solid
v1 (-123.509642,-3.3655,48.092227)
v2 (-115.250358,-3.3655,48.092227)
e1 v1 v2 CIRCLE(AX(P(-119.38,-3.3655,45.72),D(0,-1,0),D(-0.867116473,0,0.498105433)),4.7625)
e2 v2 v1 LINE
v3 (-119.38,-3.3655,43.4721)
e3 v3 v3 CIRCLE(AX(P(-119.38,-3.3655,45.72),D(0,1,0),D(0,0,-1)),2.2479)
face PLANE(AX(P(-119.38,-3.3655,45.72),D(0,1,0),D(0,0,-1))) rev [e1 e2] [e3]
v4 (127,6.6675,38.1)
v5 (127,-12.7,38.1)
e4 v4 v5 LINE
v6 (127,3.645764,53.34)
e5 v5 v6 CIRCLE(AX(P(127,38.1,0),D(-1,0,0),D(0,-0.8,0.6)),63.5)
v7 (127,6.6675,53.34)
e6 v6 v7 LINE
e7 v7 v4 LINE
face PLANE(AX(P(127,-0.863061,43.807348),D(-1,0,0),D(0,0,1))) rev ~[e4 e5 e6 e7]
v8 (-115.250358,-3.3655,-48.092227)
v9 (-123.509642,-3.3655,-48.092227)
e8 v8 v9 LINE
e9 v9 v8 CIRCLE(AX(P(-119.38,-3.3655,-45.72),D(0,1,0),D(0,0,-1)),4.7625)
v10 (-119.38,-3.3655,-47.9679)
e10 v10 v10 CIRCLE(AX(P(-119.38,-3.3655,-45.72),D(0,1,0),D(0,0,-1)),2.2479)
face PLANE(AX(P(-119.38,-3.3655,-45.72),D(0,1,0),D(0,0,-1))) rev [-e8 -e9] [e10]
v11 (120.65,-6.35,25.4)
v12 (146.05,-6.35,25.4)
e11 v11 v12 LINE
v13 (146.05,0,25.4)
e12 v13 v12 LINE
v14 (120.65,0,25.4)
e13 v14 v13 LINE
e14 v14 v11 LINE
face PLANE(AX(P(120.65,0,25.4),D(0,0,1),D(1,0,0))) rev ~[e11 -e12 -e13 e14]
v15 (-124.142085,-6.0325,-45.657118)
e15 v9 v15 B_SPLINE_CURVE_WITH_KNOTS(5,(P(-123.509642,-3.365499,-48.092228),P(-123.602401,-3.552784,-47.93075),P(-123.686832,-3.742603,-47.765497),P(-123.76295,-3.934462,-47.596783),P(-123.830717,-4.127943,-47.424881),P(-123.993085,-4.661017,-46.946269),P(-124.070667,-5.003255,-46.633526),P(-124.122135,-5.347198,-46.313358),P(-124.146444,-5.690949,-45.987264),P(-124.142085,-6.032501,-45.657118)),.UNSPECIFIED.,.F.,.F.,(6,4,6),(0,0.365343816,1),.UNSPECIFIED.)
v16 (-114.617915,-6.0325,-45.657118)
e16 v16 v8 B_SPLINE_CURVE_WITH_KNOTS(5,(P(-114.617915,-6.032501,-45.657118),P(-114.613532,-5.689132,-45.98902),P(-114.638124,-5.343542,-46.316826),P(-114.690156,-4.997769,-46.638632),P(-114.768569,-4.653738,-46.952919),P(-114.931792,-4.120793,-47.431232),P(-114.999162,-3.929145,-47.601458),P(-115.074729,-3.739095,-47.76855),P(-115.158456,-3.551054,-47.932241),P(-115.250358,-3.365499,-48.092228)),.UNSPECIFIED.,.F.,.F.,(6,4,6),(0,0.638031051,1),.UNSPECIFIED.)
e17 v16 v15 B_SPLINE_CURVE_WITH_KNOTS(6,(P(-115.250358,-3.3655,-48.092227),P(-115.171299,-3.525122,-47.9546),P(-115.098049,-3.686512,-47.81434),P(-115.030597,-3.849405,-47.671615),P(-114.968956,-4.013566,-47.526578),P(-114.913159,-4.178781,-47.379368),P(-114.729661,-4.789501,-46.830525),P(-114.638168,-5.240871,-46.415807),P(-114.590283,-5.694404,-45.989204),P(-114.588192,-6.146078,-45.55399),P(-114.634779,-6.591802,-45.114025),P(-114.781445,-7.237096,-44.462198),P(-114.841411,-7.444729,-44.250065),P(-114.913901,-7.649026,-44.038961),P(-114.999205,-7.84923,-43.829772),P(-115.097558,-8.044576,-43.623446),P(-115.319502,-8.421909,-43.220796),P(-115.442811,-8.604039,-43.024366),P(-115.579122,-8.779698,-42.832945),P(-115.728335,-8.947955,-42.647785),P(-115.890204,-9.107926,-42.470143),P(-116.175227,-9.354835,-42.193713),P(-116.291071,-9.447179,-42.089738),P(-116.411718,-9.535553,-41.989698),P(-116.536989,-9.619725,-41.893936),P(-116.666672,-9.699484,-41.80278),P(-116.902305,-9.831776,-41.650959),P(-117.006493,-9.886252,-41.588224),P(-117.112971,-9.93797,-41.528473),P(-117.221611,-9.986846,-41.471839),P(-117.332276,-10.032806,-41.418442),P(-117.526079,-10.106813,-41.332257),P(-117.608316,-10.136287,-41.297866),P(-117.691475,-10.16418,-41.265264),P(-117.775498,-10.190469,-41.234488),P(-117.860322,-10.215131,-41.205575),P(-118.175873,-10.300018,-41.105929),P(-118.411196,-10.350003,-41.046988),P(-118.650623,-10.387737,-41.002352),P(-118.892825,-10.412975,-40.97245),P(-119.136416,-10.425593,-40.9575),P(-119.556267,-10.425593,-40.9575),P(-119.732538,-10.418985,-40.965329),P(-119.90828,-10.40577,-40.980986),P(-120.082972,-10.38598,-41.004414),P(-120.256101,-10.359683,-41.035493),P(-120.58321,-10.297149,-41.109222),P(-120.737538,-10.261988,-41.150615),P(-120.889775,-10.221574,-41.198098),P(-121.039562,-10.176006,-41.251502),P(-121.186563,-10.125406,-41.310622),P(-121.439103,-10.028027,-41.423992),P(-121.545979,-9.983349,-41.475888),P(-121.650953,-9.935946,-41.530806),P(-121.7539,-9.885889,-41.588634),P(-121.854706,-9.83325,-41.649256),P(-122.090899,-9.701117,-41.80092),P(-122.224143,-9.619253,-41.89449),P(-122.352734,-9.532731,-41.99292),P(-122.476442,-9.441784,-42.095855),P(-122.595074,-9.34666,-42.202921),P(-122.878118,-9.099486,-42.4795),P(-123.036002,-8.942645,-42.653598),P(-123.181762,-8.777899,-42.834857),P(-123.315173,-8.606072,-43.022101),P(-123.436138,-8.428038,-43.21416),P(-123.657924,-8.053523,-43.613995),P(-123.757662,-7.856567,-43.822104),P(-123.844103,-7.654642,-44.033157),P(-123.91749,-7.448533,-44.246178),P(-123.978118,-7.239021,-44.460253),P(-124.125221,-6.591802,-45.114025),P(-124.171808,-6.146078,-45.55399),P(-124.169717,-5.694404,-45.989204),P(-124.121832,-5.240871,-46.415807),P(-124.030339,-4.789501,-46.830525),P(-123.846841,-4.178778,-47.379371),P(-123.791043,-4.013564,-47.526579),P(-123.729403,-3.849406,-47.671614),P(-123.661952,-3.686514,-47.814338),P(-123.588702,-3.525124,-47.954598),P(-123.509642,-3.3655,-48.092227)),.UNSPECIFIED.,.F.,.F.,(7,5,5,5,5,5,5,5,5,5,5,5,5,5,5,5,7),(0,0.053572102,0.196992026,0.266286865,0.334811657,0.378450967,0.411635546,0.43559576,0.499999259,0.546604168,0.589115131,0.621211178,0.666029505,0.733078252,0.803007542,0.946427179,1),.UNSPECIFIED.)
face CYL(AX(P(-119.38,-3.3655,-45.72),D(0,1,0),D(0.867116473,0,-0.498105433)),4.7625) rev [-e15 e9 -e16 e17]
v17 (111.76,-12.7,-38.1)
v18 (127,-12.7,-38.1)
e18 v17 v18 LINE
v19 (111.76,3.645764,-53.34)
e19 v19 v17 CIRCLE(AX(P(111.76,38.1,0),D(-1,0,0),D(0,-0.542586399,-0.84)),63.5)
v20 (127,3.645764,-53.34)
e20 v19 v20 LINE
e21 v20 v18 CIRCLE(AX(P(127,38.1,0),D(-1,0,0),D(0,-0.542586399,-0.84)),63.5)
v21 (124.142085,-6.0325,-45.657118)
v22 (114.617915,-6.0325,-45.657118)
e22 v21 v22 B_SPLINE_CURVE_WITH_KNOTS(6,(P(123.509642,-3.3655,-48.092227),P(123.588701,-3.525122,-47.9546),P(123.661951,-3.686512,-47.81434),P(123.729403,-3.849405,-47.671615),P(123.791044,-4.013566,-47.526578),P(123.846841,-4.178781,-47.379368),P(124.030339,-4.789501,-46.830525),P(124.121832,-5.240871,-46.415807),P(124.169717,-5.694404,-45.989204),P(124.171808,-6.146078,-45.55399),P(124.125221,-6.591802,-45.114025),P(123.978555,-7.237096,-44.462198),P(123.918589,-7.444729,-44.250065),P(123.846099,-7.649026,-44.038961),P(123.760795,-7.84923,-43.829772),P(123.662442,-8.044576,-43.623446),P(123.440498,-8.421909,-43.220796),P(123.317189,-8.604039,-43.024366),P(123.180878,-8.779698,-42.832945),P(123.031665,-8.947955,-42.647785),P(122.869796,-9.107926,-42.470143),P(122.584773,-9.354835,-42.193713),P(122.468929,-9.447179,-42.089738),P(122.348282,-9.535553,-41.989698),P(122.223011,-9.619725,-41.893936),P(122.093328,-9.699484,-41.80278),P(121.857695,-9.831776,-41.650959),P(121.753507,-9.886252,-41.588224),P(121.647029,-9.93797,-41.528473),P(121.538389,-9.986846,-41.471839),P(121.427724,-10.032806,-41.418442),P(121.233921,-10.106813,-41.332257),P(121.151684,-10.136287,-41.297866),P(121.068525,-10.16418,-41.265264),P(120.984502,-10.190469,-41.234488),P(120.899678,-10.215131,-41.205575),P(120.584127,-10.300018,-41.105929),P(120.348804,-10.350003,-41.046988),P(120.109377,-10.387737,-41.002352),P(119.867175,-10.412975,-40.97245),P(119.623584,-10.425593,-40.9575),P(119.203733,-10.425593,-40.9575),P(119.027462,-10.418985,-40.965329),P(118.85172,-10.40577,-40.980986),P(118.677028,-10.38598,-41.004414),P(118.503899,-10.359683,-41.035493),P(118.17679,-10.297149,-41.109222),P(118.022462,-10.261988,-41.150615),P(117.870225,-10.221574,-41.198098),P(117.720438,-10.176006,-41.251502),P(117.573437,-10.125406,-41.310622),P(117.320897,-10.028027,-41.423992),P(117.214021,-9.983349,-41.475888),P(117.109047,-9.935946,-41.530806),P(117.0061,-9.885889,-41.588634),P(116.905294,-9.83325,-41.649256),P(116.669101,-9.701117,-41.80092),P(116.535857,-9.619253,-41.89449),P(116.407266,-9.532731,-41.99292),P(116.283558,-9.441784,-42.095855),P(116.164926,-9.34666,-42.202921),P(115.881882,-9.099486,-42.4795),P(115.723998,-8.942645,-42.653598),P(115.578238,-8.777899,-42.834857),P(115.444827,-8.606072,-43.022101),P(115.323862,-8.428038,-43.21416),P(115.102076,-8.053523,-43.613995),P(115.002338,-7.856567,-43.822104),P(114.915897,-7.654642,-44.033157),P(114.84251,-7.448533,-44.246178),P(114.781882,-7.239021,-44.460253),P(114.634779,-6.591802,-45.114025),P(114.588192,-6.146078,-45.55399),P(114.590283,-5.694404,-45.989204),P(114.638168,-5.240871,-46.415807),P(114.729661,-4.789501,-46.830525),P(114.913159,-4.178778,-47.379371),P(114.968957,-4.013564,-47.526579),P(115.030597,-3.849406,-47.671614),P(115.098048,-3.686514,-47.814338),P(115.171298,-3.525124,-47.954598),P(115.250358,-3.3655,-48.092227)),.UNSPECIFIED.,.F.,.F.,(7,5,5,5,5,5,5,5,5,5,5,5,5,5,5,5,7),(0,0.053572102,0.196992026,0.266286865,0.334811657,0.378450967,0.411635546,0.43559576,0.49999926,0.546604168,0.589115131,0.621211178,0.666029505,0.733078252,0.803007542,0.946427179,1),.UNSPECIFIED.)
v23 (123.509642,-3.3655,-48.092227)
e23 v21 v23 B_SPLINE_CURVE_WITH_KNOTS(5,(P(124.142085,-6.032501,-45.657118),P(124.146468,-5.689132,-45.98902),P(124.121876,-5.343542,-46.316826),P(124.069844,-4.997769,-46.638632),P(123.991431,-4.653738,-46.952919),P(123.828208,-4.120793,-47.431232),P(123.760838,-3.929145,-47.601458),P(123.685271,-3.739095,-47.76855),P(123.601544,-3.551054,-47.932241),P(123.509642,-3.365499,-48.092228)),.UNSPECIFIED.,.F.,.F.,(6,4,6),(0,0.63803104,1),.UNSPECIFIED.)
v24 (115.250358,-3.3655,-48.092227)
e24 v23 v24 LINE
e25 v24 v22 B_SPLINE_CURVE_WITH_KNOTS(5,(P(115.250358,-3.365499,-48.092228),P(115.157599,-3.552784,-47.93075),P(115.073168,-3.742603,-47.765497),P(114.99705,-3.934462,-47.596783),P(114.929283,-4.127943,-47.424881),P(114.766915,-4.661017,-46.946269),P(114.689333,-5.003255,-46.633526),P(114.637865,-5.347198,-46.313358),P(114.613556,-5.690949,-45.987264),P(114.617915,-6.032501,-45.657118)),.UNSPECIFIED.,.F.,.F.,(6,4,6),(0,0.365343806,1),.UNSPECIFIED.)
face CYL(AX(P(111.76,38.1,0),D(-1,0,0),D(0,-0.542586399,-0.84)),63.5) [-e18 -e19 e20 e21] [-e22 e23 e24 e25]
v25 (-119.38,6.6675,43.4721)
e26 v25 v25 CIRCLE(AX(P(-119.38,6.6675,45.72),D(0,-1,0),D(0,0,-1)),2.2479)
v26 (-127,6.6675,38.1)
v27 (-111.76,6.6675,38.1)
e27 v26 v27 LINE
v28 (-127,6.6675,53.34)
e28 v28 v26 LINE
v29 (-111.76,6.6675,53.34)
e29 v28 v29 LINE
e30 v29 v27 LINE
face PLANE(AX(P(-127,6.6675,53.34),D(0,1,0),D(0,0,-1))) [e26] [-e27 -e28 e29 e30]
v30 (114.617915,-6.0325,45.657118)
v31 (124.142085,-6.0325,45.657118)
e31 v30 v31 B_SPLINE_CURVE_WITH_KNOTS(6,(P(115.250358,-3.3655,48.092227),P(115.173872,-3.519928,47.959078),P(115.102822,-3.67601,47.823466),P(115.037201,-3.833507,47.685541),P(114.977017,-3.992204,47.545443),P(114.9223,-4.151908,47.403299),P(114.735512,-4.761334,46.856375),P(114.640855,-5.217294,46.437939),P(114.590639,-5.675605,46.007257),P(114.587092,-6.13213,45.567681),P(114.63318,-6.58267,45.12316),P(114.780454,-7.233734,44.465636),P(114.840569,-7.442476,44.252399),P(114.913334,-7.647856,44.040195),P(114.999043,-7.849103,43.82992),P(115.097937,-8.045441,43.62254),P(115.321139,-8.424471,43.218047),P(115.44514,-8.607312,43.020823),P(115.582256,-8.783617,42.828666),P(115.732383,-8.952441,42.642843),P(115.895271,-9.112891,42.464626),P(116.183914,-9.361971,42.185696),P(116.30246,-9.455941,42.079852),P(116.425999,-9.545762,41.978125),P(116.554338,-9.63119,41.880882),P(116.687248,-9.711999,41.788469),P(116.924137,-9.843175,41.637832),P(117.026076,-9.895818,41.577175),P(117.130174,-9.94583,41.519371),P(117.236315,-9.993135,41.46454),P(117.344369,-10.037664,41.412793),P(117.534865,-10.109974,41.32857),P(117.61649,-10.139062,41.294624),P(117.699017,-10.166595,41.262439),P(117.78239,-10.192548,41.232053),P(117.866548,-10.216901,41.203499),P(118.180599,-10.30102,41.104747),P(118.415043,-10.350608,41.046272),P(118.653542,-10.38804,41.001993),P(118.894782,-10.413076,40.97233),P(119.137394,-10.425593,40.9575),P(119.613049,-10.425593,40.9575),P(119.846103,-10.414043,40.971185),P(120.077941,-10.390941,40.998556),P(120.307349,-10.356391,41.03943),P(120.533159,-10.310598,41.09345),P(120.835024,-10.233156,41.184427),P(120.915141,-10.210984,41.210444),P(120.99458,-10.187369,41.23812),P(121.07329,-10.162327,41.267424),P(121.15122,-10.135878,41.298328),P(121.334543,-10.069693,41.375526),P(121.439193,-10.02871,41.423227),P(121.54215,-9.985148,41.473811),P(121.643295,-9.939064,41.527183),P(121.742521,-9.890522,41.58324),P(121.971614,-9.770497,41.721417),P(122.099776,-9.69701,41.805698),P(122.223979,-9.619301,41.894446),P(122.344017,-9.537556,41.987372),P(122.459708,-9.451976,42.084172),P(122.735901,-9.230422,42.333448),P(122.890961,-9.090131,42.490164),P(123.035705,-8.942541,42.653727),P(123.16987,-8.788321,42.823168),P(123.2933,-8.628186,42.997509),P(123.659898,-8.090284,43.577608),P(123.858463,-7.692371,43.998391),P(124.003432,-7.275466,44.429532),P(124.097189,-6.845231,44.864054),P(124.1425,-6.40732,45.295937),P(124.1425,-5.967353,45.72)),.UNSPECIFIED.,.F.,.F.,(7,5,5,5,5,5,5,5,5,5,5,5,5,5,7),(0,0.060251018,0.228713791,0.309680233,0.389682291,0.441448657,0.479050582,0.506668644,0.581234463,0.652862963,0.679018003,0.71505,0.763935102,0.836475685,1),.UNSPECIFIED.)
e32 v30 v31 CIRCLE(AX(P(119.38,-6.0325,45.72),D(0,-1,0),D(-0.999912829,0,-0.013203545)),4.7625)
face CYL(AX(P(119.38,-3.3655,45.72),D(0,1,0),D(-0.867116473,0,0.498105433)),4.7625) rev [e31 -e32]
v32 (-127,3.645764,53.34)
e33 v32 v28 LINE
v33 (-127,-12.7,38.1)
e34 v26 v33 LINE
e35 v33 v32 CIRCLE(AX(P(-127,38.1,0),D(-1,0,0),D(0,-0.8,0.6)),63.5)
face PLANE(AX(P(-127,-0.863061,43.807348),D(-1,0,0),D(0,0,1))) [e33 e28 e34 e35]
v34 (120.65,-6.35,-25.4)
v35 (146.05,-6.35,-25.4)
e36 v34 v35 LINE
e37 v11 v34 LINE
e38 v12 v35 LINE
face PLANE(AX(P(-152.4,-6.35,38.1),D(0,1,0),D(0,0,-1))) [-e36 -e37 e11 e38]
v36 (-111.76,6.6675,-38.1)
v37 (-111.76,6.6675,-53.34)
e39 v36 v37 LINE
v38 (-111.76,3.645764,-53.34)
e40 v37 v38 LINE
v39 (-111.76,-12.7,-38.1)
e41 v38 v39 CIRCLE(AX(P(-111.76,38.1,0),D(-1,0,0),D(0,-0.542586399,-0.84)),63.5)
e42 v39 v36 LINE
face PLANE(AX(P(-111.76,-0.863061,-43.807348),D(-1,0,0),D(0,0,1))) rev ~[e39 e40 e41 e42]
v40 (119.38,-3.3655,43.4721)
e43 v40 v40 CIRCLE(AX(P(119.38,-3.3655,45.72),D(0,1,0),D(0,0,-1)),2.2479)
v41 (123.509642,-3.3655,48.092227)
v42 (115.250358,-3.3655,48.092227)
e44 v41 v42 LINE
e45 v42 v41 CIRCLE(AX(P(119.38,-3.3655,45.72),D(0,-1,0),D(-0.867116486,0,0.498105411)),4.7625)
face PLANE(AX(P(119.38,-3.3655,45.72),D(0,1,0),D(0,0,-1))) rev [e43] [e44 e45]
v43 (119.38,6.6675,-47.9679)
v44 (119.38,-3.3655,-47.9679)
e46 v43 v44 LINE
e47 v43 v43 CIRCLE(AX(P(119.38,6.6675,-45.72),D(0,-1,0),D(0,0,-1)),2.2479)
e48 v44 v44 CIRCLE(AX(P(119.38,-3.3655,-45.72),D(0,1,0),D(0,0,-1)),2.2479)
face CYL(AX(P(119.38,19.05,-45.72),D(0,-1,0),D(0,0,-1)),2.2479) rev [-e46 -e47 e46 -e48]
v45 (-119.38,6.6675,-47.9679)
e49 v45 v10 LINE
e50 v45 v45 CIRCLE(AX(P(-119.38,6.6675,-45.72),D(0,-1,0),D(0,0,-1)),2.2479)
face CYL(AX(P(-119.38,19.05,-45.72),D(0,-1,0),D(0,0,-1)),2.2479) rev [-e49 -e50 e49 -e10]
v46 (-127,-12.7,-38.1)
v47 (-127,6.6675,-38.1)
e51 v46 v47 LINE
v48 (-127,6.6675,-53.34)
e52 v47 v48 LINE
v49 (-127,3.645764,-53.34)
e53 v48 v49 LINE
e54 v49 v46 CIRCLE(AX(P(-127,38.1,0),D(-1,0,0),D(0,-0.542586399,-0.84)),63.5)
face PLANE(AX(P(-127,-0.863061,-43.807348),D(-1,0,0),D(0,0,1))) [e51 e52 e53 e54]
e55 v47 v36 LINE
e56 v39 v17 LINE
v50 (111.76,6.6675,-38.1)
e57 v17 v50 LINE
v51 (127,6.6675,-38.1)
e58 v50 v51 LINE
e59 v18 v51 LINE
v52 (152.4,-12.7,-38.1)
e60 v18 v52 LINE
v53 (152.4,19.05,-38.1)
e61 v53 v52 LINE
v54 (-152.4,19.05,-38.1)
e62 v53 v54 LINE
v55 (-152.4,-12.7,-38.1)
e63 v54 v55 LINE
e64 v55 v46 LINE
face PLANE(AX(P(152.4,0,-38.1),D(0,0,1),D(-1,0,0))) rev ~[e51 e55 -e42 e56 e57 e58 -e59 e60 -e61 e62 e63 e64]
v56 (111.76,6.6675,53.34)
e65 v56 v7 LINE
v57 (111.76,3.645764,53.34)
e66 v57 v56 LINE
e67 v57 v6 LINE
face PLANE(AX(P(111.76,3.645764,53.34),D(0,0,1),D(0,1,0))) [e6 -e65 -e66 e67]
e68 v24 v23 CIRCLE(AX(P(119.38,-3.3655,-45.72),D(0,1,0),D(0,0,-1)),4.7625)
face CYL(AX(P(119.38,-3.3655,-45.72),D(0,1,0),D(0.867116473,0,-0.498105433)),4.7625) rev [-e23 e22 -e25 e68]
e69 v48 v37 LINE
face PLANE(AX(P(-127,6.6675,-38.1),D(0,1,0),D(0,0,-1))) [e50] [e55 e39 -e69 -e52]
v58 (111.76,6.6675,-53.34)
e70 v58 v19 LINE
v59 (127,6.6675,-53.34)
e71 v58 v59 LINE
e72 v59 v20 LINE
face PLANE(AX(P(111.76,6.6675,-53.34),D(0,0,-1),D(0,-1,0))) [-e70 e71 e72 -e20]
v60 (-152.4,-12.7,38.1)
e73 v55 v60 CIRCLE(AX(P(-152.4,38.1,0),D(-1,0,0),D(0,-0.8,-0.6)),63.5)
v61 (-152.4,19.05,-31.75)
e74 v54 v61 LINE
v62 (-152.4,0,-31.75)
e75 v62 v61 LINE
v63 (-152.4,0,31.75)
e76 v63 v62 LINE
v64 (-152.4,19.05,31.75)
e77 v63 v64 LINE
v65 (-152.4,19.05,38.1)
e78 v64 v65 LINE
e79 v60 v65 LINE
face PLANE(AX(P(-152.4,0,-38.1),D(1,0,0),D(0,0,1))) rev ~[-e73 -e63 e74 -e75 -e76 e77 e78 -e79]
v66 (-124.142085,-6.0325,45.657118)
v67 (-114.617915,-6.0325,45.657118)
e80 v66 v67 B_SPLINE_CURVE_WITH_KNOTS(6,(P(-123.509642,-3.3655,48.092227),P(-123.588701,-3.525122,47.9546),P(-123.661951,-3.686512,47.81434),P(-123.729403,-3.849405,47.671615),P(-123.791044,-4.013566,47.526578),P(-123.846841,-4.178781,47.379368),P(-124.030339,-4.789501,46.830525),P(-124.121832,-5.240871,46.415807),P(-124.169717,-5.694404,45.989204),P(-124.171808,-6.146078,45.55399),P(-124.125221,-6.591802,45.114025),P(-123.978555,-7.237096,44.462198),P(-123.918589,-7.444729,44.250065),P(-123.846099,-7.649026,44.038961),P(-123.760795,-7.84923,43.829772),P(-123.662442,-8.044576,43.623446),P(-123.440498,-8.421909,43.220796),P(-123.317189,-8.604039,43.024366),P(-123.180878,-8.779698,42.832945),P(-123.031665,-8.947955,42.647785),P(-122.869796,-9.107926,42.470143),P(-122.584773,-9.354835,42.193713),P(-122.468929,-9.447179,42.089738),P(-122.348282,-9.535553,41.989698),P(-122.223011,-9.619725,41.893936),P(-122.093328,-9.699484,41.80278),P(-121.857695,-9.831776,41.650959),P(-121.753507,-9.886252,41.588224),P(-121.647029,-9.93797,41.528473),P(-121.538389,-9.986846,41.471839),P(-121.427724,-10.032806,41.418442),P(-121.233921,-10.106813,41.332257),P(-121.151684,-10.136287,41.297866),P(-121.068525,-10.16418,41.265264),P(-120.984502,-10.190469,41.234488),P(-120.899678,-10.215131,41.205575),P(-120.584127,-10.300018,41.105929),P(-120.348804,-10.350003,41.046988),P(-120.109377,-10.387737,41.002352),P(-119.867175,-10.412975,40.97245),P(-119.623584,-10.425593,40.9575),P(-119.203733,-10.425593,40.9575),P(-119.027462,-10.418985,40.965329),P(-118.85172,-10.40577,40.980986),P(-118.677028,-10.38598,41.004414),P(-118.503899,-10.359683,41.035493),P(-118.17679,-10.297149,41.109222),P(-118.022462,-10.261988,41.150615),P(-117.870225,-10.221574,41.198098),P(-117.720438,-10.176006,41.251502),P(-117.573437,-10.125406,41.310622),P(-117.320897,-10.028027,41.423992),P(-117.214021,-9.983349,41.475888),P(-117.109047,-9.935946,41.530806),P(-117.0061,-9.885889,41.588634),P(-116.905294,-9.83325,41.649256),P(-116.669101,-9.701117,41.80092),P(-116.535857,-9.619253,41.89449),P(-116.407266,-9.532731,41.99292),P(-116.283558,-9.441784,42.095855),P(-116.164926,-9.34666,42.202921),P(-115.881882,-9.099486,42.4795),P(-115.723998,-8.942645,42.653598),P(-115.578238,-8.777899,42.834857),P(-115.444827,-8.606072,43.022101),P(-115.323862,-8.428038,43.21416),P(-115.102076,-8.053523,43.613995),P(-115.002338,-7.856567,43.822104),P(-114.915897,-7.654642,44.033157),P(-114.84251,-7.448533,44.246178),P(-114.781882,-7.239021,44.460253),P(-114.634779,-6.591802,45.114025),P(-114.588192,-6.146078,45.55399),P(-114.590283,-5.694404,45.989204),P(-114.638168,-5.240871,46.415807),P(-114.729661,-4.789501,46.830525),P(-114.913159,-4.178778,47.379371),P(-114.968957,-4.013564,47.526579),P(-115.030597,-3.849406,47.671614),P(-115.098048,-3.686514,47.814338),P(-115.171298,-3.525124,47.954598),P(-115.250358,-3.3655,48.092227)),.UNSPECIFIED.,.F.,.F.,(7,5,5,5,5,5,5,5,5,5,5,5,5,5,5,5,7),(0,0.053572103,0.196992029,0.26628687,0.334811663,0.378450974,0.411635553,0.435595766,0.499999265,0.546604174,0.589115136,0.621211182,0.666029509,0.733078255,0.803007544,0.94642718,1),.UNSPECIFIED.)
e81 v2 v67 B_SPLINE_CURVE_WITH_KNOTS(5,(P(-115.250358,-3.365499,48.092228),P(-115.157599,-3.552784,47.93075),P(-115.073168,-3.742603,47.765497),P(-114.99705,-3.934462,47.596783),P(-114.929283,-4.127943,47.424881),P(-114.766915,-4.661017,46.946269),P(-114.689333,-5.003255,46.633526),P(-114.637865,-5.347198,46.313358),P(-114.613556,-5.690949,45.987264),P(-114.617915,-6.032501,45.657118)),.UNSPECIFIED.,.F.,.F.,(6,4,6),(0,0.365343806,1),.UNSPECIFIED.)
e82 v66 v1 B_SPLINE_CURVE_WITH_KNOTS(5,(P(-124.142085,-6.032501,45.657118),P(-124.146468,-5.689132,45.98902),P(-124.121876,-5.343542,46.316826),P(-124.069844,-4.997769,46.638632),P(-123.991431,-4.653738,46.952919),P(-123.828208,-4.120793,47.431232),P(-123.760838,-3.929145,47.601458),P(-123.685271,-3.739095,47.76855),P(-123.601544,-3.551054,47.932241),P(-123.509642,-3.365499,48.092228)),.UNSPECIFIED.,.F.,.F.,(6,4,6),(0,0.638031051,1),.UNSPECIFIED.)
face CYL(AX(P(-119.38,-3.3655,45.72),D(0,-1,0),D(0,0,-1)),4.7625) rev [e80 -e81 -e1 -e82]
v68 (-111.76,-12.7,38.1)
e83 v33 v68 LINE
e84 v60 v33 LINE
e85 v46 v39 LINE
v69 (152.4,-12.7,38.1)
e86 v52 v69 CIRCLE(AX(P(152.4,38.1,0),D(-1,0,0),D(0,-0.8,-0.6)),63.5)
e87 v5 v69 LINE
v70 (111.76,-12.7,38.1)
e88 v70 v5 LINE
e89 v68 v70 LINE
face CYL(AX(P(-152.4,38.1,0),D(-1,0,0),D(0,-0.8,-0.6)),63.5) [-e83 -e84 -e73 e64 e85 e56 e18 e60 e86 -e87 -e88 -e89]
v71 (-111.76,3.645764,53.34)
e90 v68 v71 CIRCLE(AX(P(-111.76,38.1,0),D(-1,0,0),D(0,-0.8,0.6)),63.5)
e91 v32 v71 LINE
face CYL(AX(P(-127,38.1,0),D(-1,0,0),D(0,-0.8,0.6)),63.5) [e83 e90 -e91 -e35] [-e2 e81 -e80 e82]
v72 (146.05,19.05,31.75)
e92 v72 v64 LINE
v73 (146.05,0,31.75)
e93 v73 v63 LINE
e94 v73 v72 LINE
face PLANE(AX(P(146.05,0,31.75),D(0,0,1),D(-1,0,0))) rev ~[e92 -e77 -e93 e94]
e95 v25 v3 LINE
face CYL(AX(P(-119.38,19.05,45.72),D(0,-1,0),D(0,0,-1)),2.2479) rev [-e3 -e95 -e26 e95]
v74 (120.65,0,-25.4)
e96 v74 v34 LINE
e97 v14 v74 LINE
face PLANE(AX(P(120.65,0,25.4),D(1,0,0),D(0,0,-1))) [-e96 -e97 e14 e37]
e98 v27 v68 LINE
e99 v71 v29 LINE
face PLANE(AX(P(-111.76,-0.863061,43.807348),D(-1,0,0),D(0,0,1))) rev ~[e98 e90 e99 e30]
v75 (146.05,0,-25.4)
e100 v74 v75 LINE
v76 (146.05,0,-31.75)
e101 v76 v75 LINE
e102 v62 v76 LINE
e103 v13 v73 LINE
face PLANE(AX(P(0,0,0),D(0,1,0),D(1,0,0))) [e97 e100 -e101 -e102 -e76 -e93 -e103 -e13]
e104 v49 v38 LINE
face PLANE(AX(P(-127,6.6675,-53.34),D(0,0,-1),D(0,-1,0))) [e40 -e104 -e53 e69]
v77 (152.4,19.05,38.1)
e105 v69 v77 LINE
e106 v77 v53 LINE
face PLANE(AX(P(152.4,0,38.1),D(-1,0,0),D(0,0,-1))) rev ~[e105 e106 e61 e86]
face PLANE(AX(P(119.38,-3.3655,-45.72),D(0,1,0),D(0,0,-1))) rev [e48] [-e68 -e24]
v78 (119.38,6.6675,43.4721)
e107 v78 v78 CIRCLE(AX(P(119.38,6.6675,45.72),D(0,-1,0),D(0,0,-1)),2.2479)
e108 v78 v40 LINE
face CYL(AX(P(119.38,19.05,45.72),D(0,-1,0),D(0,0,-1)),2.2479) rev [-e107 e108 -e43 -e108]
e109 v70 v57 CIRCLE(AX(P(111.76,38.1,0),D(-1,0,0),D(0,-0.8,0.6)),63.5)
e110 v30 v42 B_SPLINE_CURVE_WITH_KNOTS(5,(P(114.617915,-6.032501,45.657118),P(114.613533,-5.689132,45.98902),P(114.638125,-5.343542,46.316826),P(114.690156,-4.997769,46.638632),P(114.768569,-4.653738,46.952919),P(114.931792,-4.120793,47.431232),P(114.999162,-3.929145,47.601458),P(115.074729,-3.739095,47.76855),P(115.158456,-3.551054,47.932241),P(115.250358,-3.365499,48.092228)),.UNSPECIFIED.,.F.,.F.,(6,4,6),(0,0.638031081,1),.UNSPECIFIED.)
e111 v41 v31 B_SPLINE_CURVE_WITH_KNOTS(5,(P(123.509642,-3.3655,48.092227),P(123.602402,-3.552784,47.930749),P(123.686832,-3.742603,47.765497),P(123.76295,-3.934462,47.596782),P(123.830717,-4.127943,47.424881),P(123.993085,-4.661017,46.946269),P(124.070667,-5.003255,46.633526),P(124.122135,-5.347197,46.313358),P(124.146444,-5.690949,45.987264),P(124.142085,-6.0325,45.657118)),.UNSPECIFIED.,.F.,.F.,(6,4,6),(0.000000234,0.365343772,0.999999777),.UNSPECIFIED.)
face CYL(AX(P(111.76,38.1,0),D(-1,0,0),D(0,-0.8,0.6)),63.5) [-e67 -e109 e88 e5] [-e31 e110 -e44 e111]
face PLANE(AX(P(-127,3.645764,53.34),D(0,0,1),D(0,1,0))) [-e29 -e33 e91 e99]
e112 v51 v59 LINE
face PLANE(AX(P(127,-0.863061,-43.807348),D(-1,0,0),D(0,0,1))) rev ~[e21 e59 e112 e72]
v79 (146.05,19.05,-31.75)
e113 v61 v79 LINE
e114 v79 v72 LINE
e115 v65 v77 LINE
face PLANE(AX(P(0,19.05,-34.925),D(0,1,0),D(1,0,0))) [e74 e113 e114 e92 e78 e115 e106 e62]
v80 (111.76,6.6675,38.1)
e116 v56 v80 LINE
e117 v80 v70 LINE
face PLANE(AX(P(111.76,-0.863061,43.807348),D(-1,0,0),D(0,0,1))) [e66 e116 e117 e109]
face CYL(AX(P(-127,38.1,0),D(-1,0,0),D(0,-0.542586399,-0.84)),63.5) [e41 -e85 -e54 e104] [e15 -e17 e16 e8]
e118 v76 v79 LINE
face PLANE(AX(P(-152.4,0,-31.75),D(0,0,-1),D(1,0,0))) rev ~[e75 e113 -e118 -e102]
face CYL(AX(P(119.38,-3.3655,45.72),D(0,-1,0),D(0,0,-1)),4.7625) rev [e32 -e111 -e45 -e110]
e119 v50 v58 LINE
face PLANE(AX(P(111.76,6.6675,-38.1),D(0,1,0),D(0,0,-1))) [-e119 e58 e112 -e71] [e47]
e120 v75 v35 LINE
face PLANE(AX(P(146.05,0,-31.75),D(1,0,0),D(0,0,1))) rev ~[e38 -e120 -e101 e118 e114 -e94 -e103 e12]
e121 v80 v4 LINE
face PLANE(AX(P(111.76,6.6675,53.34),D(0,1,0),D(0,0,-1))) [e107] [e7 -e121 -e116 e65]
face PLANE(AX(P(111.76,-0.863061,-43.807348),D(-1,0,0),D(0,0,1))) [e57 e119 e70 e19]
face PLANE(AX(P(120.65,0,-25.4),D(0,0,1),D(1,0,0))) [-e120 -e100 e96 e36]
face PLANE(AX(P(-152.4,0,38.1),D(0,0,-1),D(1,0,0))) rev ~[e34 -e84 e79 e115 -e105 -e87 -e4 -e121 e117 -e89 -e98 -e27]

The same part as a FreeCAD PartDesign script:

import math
import FreeCAD as App
import Part
import Sketcher

V = App.Vector
Q = App.Units.Quantity

doc = App.newDocument("Part")
params = doc.addObject("Spreadsheet::Sheet", "Params")
for row, (alias, value) in enumerate([
    ("sketch1_width", "12 in"),
    ("sketch1_height", "3 in"),
    ("pad1_length", "0.25 in"),
    ("sketch2_width", "1 in"),
    ("sketch2_height", "2 in"),
    ("pocket1_length", "1 in"),
    ("sketch3_width", "12 in"),
    ("sketch3_height", "3 in"),
    ("sketch3_height2", "2.5 in"),
    ("sketch3_width2", "11.75 in"),
    ("pad2_length", "0.75 in"),
    ("sketch4_radius", "2.5 in"),
    ("sketch4_height", "3 in"),
    ("sketch4_width", "0.25 in"),
    ("pad3_length", "12 in"),
    ("sketch5_radius", "2.5 in"),
    ("sketch5_height", "0.6 in"),
    ("sketch5_width", "2 in"),
    ("pad4_length", "0.6 in"),
    ("sketch6_radius", "2.5 in"),
    ("sketch6_height", "0.6 in"),
    ("sketch6_width", "2 in"),
    ("pad5_length", "0.6 in"),
    ("sketch7_width", "0.105 in"),
    ("sketch7_height", "0.1875 in"),
    ("sketch7_height2", "0.099 in"),
    ("groove_angle", "360 deg"),
    ("linearpattern_pitch", "9.4 in"),
    ("linearpattern2_pitch", "255.670904 mm"),
    ("linearpattern3_pitch", "3.6 in"),
    ("sketch8_radius", "0.1875 in"),
], start=1):
    params.set(f"A{row}", alias)
    params.set(f"B{row}", "=" + value)
    params.setAlias(f"B{row}", alias)

body = doc.addObject("PartDesign::Body", "Body")

sketch1 = body.newObject("Sketcher::SketchObject", "Sketch")
sketch1.AttachmentSupport = (doc.getObject("XZ_Plane"), [""])
sketch1.MapMode = "FlatFace"
sketch1.addGeometry(Part.LineSegment(V(-152.4, -38.1, 0), V(-152.4, 38.1, 0)), False)
sketch1.addGeometry(Part.LineSegment(V(-152.4, 38.1, 0), V(152.4, 38.1, 0)), False)
sketch1.addGeometry(Part.LineSegment(V(152.4, 38.1, 0), V(152.4, -38.1, 0)), False)
sketch1.addGeometry(Part.LineSegment(V(152.4, -38.1, 0), V(-152.4, -38.1, 0)), False)
sketch1.addConstraint(Sketcher.Constraint("Coincident", 0, 2, 1, 1))
sketch1.addConstraint(Sketcher.Constraint("Coincident", 1, 2, 2, 1))
sketch1.addConstraint(Sketcher.Constraint("Coincident", 2, 2, 3, 1))
sketch1.addConstraint(Sketcher.Constraint("Coincident", 3, 2, 0, 1))
sketch1.addConstraint(Sketcher.Constraint("Vertical", 0))
sketch1.addConstraint(Sketcher.Constraint("Horizontal", 1))
sketch1.addConstraint(Sketcher.Constraint("Vertical", 2))
sketch1.addConstraint(Sketcher.Constraint("Horizontal", 3))
sketch1.addConstraint(Sketcher.Constraint("Symmetric", 0, 2, 2, 2, -1, 1))
sketch1.addConstraint(Sketcher.Constraint("DistanceX", 1, 1, 1, 2, Q("12 in")))
sketch1.addConstraint(Sketcher.Constraint("DistanceY", 0, 1, 0, 2, Q("3 in")))
sketch1.setExpression("Constraints[9]", "Params.sketch1_width")
sketch1.setExpression("Constraints[10]", "Params.sketch1_height")
pad1 = body.newObject("PartDesign::Pad", "Pad")
pad1.Profile = sketch1
pad1.setExpression("Length", "Params.pad1_length")

sketch2 = body.newObject("Sketcher::SketchObject", "Sketch001")
sketch2.AttachmentSupport = (doc.getObject("XZ_Plane"), [""])
sketch2.MapMode = "FlatFace"
sketch2.addGeometry(Part.LineSegment(V(120.65, -25.4, 0), V(120.65, 25.4, 0)), False)
sketch2.addGeometry(Part.LineSegment(V(120.65, 25.4, 0), V(146.05, 25.4, 0)), False)
sketch2.addGeometry(Part.LineSegment(V(146.05, 25.4, 0), V(146.05, -25.4, 0)), False)
sketch2.addGeometry(Part.LineSegment(V(146.05, -25.4, 0), V(120.65, -25.4, 0)), False)
sketch2.addConstraint(Sketcher.Constraint("Coincident", 0, 2, 1, 1))
sketch2.addConstraint(Sketcher.Constraint("Coincident", 1, 2, 2, 1))
sketch2.addConstraint(Sketcher.Constraint("Coincident", 2, 2, 3, 1))
sketch2.addConstraint(Sketcher.Constraint("Coincident", 3, 2, 0, 1))
sketch2.addConstraint(Sketcher.Constraint("Vertical", 0))
sketch2.addConstraint(Sketcher.Constraint("Horizontal", 1))
sketch2.addConstraint(Sketcher.Constraint("Vertical", 2))
sketch2.addConstraint(Sketcher.Constraint("Horizontal", 3))
sketch2.addConstraint(Sketcher.Constraint("DistanceX", 1, 1, 1, 2, Q("1 in")))
sketch2.addConstraint(Sketcher.Constraint("DistanceY", 0, 1, 0, 2, Q("2 in")))
sketch2.addConstraint(Sketcher.Constraint("DistanceY", -1, 1, 0, 2, Q("1 in")))
sketch2.addConstraint(Sketcher.Constraint("DistanceX", -1, 1, 0, 2, Q("4.75 in")))
sketch2.setExpression("Constraints[8]", "Params.sketch2_width")
sketch2.setExpression("Constraints[9]", "Params.sketch2_height")
pocket1 = body.newObject("PartDesign::Pocket", "Pocket")
pocket1.Profile = sketch2
pocket1.setExpression("Length", "Params.pocket1_length")
pocket1.Reversed = True

sketch3 = body.newObject("Sketcher::SketchObject", "Sketch002")
sketch3.AttachmentSupport = (doc.getObject("XZ_Plane"), [""])
sketch3.MapMode = "FlatFace"
sketch3.addGeometry(Part.LineSegment(V(152.4, -38.1, 0), V(-152.4, -38.1, 0)), False)
sketch3.addGeometry(Part.LineSegment(V(-152.4, -38.1, 0), V(-152.4, -31.75, 0)), False)
sketch3.addGeometry(Part.LineSegment(V(-152.4, -31.75, 0), V(146.05, -31.75, 0)), False)
sketch3.addGeometry(Part.LineSegment(V(146.05, -31.75, 0), V(146.05, 31.75, 0)), False)
sketch3.addGeometry(Part.LineSegment(V(146.05, 31.75, 0), V(-152.4, 31.75, 0)), False)
sketch3.addGeometry(Part.LineSegment(V(-152.4, 31.75, 0), V(-152.4, 38.1, 0)), False)
sketch3.addGeometry(Part.LineSegment(V(-152.4, 38.1, 0), V(152.4, 38.1, 0)), False)
sketch3.addGeometry(Part.LineSegment(V(152.4, 38.1, 0), V(152.4, -38.1, 0)), False)
sketch3.addConstraint(Sketcher.Constraint("Coincident", 0, 2, 1, 1))
sketch3.addConstraint(Sketcher.Constraint("Coincident", 1, 2, 2, 1))
sketch3.addConstraint(Sketcher.Constraint("Coincident", 2, 2, 3, 1))
sketch3.addConstraint(Sketcher.Constraint("Coincident", 3, 2, 4, 1))
sketch3.addConstraint(Sketcher.Constraint("Coincident", 4, 2, 5, 1))
sketch3.addConstraint(Sketcher.Constraint("Coincident", 5, 2, 6, 1))
sketch3.addConstraint(Sketcher.Constraint("Coincident", 6, 2, 7, 1))
sketch3.addConstraint(Sketcher.Constraint("Coincident", 7, 2, 0, 1))
sketch3.addConstraint(Sketcher.Constraint("Horizontal", 0))
sketch3.addConstraint(Sketcher.Constraint("Vertical", 1))
sketch3.addConstraint(Sketcher.Constraint("Horizontal", 2))
sketch3.addConstraint(Sketcher.Constraint("Vertical", 3))
sketch3.addConstraint(Sketcher.Constraint("Horizontal", 4))
sketch3.addConstraint(Sketcher.Constraint("Vertical", 5))
sketch3.addConstraint(Sketcher.Constraint("Horizontal", 6))
sketch3.addConstraint(Sketcher.Constraint("Vertical", 7))
sketch3.addConstraint(Sketcher.Constraint("Symmetric", 0, 2, 6, 2, -1, 1))
sketch3.addConstraint(Sketcher.Constraint("Symmetric", 1, 2, 4, 2, -1))
sketch3.addConstraint(Sketcher.Constraint("DistanceX", 0, 2, 0, 1, Q("12 in")))
sketch3.addConstraint(Sketcher.Constraint("DistanceY", 7, 2, 7, 1, Q("3 in")))
sketch3.addConstraint(Sketcher.Constraint("DistanceY", 3, 1, 3, 2, Q("2.5 in")))
sketch3.addConstraint(Sketcher.Constraint("DistanceX", 2, 1, 2, 2, Q("11.75 in")))
sketch3.setExpression("Constraints[18]", "Params.sketch3_width")
sketch3.setExpression("Constraints[19]", "Params.sketch3_height")
sketch3.setExpression("Constraints[20]", "Params.sketch3_height2")
sketch3.setExpression("Constraints[21]", "Params.sketch3_width2")
pad2 = body.newObject("PartDesign::Pad", "Pad001")
pad2.Profile = sketch3
pad2.setExpression("Length", "Params.pad2_length")
pad2.Reversed = True

sketch4 = body.newObject("Sketcher::SketchObject", "Sketch003")
sketch4.AttachmentSupport = (doc.getObject("YZ_Plane"), [""])
sketch4.MapMode = "FlatFace"
sketch4.AttachmentOffset = App.Placement(V(0, 0, -6 * 25.4), App.Rotation())
sketch4.addGeometry(Part.LineSegment(V(-6.35, 38.1, 0), V(-6.35, -38.1, 0)), False)
sketch4.addGeometry(Part.LineSegment(V(-6.35, -38.1, 0), V(-12.7, -38.1, 0)), False)
sketch4.addGeometry(Part.ArcOfCircle(Part.Circle(V(38.1, 0, 0), V(0, 0, 1), 63.5), math.radians(143.130102), math.radians(216.869898)), False)
sketch4.addGeometry(Part.LineSegment(V(-12.7, 38.1, 0), V(-6.35, 38.1, 0)), False)
sketch4.addConstraint(Sketcher.Constraint("Coincident", 0, 2, 1, 1))
sketch4.addConstraint(Sketcher.Constraint("Coincident", 1, 2, 2, 2))
sketch4.addConstraint(Sketcher.Constraint("Coincident", 2, 1, 3, 1))
sketch4.addConstraint(Sketcher.Constraint("Coincident", 3, 2, 0, 1))
sketch4.addConstraint(Sketcher.Constraint("Vertical", 0))
sketch4.addConstraint(Sketcher.Constraint("Horizontal", 1))
sketch4.addConstraint(Sketcher.Constraint("Horizontal", 3))
sketch4.addConstraint(Sketcher.Constraint("Symmetric", 1, 2, 2, 1, -1))
sketch4.addConstraint(Sketcher.Constraint("Radius", 2, Q("2.5 in")))
sketch4.addConstraint(Sketcher.Constraint("DistanceY", 0, 2, 0, 1, Q("3 in")))
sketch4.addConstraint(Sketcher.Constraint("DistanceX", 1, 2, 1, 1, Q("0.25 in")))
sketch4.addConstraint(Sketcher.Constraint("DistanceX", -1, 1, 2, 3, Q("1.5 in")))
sketch4.setExpression("Constraints[8]", "Params.sketch4_radius")
sketch4.setExpression("Constraints[9]", "Params.sketch4_height")
sketch4.setExpression("Constraints[10]", "Params.sketch4_width")
pad3 = body.newObject("PartDesign::Pad", "Pad002")
pad3.Profile = sketch4
pad3.setExpression("Length", "Params.pad3_length")

sketch5 = body.newObject("Sketcher::SketchObject", "Sketch004")
sketch5.AttachmentSupport = (doc.getObject("YZ_Plane"), [""])
sketch5.MapMode = "FlatFace"
sketch5.AttachmentOffset = App.Placement(V(0, 0, -5 * 25.4), App.Rotation())
sketch5.addGeometry(Part.LineSegment(V(-12.7, -38.1, 0), V(6.6675, -38.1, 0)), False)
sketch5.addGeometry(Part.LineSegment(V(6.6675, -38.1, 0), V(6.6675, -53.34, 0)), False)
sketch5.addGeometry(Part.LineSegment(V(6.6675, -53.34, 0), V(3.645764, -53.34, 0)), False)
sketch5.addGeometry(Part.ArcOfCircle(Part.Circle(V(38.1, 0, 0), V(0, 0, 1), 63.5), math.radians(-143.130102), math.radians(-122.85988)), False)
sketch5.addGeometry(Part.LineSegment(V(3.645764, 53.34, 0), V(6.6675, 53.34, 0)), False)
sketch5.addGeometry(Part.LineSegment(V(6.6675, 53.34, 0), V(6.6675, 38.1, 0)), False)
sketch5.addGeometry(Part.LineSegment(V(6.6675, 38.1, 0), V(-12.7, 38.1, 0)), False)
sketch5.addGeometry(Part.ArcOfCircle(Part.Circle(V(38.1, 0, 0), V(0, 0, 1), 63.5), math.radians(122.85988), math.radians(143.130102)), False)
sketch5.addConstraint(Sketcher.Constraint("Coincident", 0, 2, 1, 1))
sketch5.addConstraint(Sketcher.Constraint("Coincident", 1, 2, 2, 1))
sketch5.addConstraint(Sketcher.Constraint("Coincident", 2, 2, 3, 2))
sketch5.addConstraint(Sketcher.Constraint("Coincident", 3, 1, 0, 1))
sketch5.addConstraint(Sketcher.Constraint("Coincident", 4, 2, 5, 1))
sketch5.addConstraint(Sketcher.Constraint("Coincident", 5, 2, 6, 1))
sketch5.addConstraint(Sketcher.Constraint("Coincident", 6, 2, 7, 2))
sketch5.addConstraint(Sketcher.Constraint("Coincident", 7, 1, 4, 1))
sketch5.addConstraint(Sketcher.Constraint("Horizontal", 0))
sketch5.addConstraint(Sketcher.Constraint("Vertical", 1))
sketch5.addConstraint(Sketcher.Constraint("Horizontal", 2))
sketch5.addConstraint(Sketcher.Constraint("Horizontal", 4))
sketch5.addConstraint(Sketcher.Constraint("Vertical", 5))
sketch5.addConstraint(Sketcher.Constraint("Horizontal", 6))
sketch5.addConstraint(Sketcher.Constraint("Coincident", 7, 3, 3, 3))
sketch5.addConstraint(Sketcher.Constraint("Equal", 3, 7))
sketch5.addConstraint(Sketcher.Constraint("Symmetric", 1, 2, 4, 2, -1))
sketch5.addConstraint(Sketcher.Constraint("Symmetric", 3, 1, 6, 2, -1))
sketch5.addConstraint(Sketcher.Constraint("Radius", 3, Q("2.5 in")))
sketch5.addConstraint(Sketcher.Constraint("DistanceY", 1, 2, 1, 1, Q("0.6 in")))
sketch5.addConstraint(Sketcher.Constraint("DistanceX", 3, 1, 3, 3, Q("2 in")))
sketch5.addConstraint(Sketcher.Constraint("DistanceX", -1, 1, 3, 3, Q("1.5 in")))
sketch5.addConstraint(Sketcher.Constraint("DistanceX", 0, 1, 0, 2, Q("0.7625 in")))
sketch5.setExpression("Constraints[18]", "Params.sketch5_radius")
sketch5.setExpression("Constraints[19]", "Params.sketch5_height")
sketch5.setExpression("Constraints[20]", "Params.sketch5_width")
pad4 = body.newObject("PartDesign::Pad", "Pad003")
pad4.Profile = sketch5
pad4.setExpression("Length", "Params.pad4_length")

sketch6 = body.newObject("Sketcher::SketchObject", "Sketch005")
sketch6.AttachmentSupport = (doc.getObject("YZ_Plane"), [""])
sketch6.MapMode = "FlatFace"
sketch6.AttachmentOffset = App.Placement(V(0, 0, 4.4 * 25.4), App.Rotation())
sketch6.addGeometry(Part.LineSegment(V(-12.7, -38.1, 0), V(6.6675, -38.1, 0)), False)
sketch6.addGeometry(Part.LineSegment(V(6.6675, -38.1, 0), V(6.6675, -53.34, 0)), False)
sketch6.addGeometry(Part.LineSegment(V(6.6675, -53.34, 0), V(3.645764, -53.34, 0)), False)
sketch6.addGeometry(Part.ArcOfCircle(Part.Circle(V(38.1, 0, 0), V(0, 0, 1), 63.5), math.radians(-143.130102), math.radians(-122.85988)), False)
sketch6.addGeometry(Part.LineSegment(V(3.645764, 53.34, 0), V(6.6675, 53.34, 0)), False)
sketch6.addGeometry(Part.LineSegment(V(6.6675, 53.34, 0), V(6.6675, 38.1, 0)), False)
sketch6.addGeometry(Part.LineSegment(V(6.6675, 38.1, 0), V(-12.7, 38.1, 0)), False)
sketch6.addGeometry(Part.ArcOfCircle(Part.Circle(V(38.1, 0, 0), V(0, 0, 1), 63.5), math.radians(122.85988), math.radians(143.130102)), False)
sketch6.addConstraint(Sketcher.Constraint("Coincident", 0, 2, 1, 1))
sketch6.addConstraint(Sketcher.Constraint("Coincident", 1, 2, 2, 1))
sketch6.addConstraint(Sketcher.Constraint("Coincident", 2, 2, 3, 2))
sketch6.addConstraint(Sketcher.Constraint("Coincident", 3, 1, 0, 1))
sketch6.addConstraint(Sketcher.Constraint("Coincident", 4, 2, 5, 1))
sketch6.addConstraint(Sketcher.Constraint("Coincident", 5, 2, 6, 1))
sketch6.addConstraint(Sketcher.Constraint("Coincident", 6, 2, 7, 2))
sketch6.addConstraint(Sketcher.Constraint("Coincident", 7, 1, 4, 1))
sketch6.addConstraint(Sketcher.Constraint("Horizontal", 0))
sketch6.addConstraint(Sketcher.Constraint("Vertical", 1))
sketch6.addConstraint(Sketcher.Constraint("Horizontal", 2))
sketch6.addConstraint(Sketcher.Constraint("Horizontal", 4))
sketch6.addConstraint(Sketcher.Constraint("Vertical", 5))
sketch6.addConstraint(Sketcher.Constraint("Horizontal", 6))
sketch6.addConstraint(Sketcher.Constraint("Coincident", 7, 3, 3, 3))
sketch6.addConstraint(Sketcher.Constraint("Equal", 3, 7))
sketch6.addConstraint(Sketcher.Constraint("Symmetric", 1, 2, 4, 2, -1))
sketch6.addConstraint(Sketcher.Constraint("Symmetric", 3, 1, 6, 2, -1))
sketch6.addConstraint(Sketcher.Constraint("Radius", 3, Q("2.5 in")))
sketch6.addConstraint(Sketcher.Constraint("DistanceY", 1, 2, 1, 1, Q("0.6 in")))
sketch6.addConstraint(Sketcher.Constraint("DistanceX", 3, 1, 3, 3, Q("2 in")))
sketch6.addConstraint(Sketcher.Constraint("DistanceX", -1, 1, 3, 3, Q("1.5 in")))
sketch6.addConstraint(Sketcher.Constraint("DistanceX", 0, 1, 0, 2, Q("0.7625 in")))
sketch6.setExpression("Constraints[18]", "Params.sketch6_radius")
sketch6.setExpression("Constraints[19]", "Params.sketch6_height")
sketch6.setExpression("Constraints[20]", "Params.sketch6_width")
pad5 = body.newObject("PartDesign::Pad", "Pad004")
pad5.Profile = sketch6
pad5.setExpression("Length", "Params.pad5_length")

sketch7 = body.newObject("Sketcher::SketchObject", "Sketch006")
sketch7.AttachmentSupport = (doc.getObject("YZ_Plane"), [""])
sketch7.MapMode = "FlatFace"
sketch7.AttachmentOffset = App.Placement(V(0, 0, -4.7 * 25.4), App.Rotation())
sketch7.addGeometry(Part.LineSegment(V(19.05, -45.72, 0), V(-6.0325, -45.72, 0)), False)
sketch7.addGeometry(Part.LineSegment(V(-6.0325, -45.72, 0), V(-6.0325, -50.4825, 0)), False)
sketch7.addGeometry(Part.LineSegment(V(-6.0325, -50.4825, 0), V(-3.3655, -50.4825, 0)), False)
sketch7.addGeometry(Part.LineSegment(V(-3.3655, -50.4825, 0), V(-3.3655, -47.9679, 0)), False)
sketch7.addGeometry(Part.LineSegment(V(-3.3655, -47.9679, 0), V(19.05, -47.9679, 0)), False)
sketch7.addGeometry(Part.LineSegment(V(19.05, -47.9679, 0), V(19.05, -45.72, 0)), False)
sketch7.addGeometry(Part.LineSegment(V(-6.0325, -45.72, 0), V(19.05, -45.72, 0)), True)
sketch7.addConstraint(Sketcher.Constraint("Coincident", 0, 2, 1, 1))
sketch7.addConstraint(Sketcher.Constraint("Coincident", 1, 2, 2, 1))
sketch7.addConstraint(Sketcher.Constraint("Coincident", 2, 2, 3, 1))
sketch7.addConstraint(Sketcher.Constraint("Coincident", 3, 2, 4, 1))
sketch7.addConstraint(Sketcher.Constraint("Coincident", 4, 2, 5, 1))
sketch7.addConstraint(Sketcher.Constraint("Coincident", 5, 2, 0, 1))
sketch7.addConstraint(Sketcher.Constraint("Horizontal", 0))
sketch7.addConstraint(Sketcher.Constraint("Vertical", 1))
sketch7.addConstraint(Sketcher.Constraint("Horizontal", 2))
sketch7.addConstraint(Sketcher.Constraint("Vertical", 3))
sketch7.addConstraint(Sketcher.Constraint("Horizontal", 4))
sketch7.addConstraint(Sketcher.Constraint("Vertical", 5))
sketch7.addConstraint(Sketcher.Constraint("Horizontal", 6))
sketch7.addConstraint(Sketcher.Constraint("Coincident", 6, 1, 0, 2))
sketch7.addConstraint(Sketcher.Constraint("Vertical", 4, 2, 6, 2))
sketch7.addConstraint(Sketcher.Constraint("DistanceY", 0, 2, -1, 1, Q("1.8 in")))
sketch7.addConstraint(Sketcher.Constraint("DistanceX", 2, 1, 2, 2, Q("0.105 in")))
sketch7.addConstraint(Sketcher.Constraint("DistanceY", 1, 2, 1, 1, Q("0.1875 in")))
sketch7.addConstraint(Sketcher.Constraint("DistanceY", 3, 1, 3, 2, Q("0.099 in")))
sketch7.addConstraint(Sketcher.Constraint("DistanceX", -1, 1, 4, 2, Q("0.75 in")))
sketch7.addConstraint(Sketcher.Constraint("DistanceX", 0, 2, 0, 1, Q("0.9875 in")))
sketch7.setExpression("Constraints[16]", "Params.sketch7_width")
sketch7.setExpression("Constraints[17]", "Params.sketch7_height")
sketch7.setExpression("Constraints[18]", "Params.sketch7_height2")
groove = body.newObject("PartDesign::Groove", "Groove")
groove.Profile = sketch7
groove.ReferenceAxis = (sketch7, ["Axis0"])
groove.setExpression("Angle", "Params.groove_angle")
doc.recompute()

linearpattern = body.newObject("PartDesign::LinearPattern", "LinearPattern")
linearpattern.Originals = [groove]
linearpattern.Direction = (doc.getObject("X_Axis"), [""])
linearpattern.Mode = "offset"
linearpattern.setExpression("Offset", "Params.linearpattern_pitch")
linearpattern.Occurrences = 2
body.Tip = linearpattern
doc.recompute()

datumline = body.newObject("PartDesign::Line", "DatumLine")
datumline.Placement = App.Placement(V(0, 0, 0), App.Rotation(V(0, 0, 1), V(0.933856752, 0, 0.357647267)))
linearpattern2 = body.newObject("PartDesign::LinearPattern", "LinearPattern001")
linearpattern2.Originals = [groove]
linearpattern2.Direction = (datumline, [""])
linearpattern2.Mode = "offset"
linearpattern2.setExpression("Offset", "Params.linearpattern2_pitch")
linearpattern2.Occurrences = 2
body.Tip = linearpattern2
doc.recompute()

linearpattern3 = body.newObject("PartDesign::LinearPattern", "LinearPattern002")
linearpattern3.Originals = [groove]
linearpattern3.Direction = (doc.getObject("Z_Axis"), [""])
linearpattern3.Mode = "offset"
linearpattern3.setExpression("Offset", "Params.linearpattern3_pitch")
linearpattern3.Occurrences = 2
body.Tip = linearpattern3

sketch8 = body.newObject("Sketcher::SketchObject", "Sketch007")
sketch8.AttachmentSupport = (doc.getObject("XZ_Plane"), [""])
sketch8.MapMode = "FlatFace"
sketch8.AttachmentOffset = App.Placement(V(0, 0, 0.1325 * 25.4), App.Rotation())
sketch8.addGeometry(Part.ArcOfCircle(Part.Circle(V(-119.38, -45.72, 0), V(0, 0, 1), 4.7625), math.radians(-29.874735), math.radians(209.874735)), False)
sketch8.addGeometry(Part.ArcOfCircle(Part.Circle(V(-119.38, -45.72, 0), V(0, 0, 1), 4.7625), math.radians(-150.125265), math.radians(-29.874735)), False)
sketch8.addGeometry(Part.ArcOfCircle(Part.Circle(V(-119.38, 45.72, 0), V(0, 0, 1), 4.7625), math.radians(29.874735), math.radians(150.125265)), False)
sketch8.addGeometry(Part.ArcOfCircle(Part.Circle(V(-119.38, 45.72, 0), V(0, 0, 1), 4.7625), math.radians(150.125265), math.radians(389.874735)), False)
sketch8.addGeometry(Part.ArcOfCircle(Part.Circle(V(119.38, 45.72, 0), V(0, 0, 1), 4.7625), math.radians(150.125265), math.radians(360)), False)
sketch8.addGeometry(Part.ArcOfCircle(Part.Circle(V(119.38, 45.72, 0), V(0, 0, 1), 4.7625), math.radians(0), math.radians(29.874735)), False)
sketch8.addGeometry(Part.ArcOfCircle(Part.Circle(V(119.38, 45.72, 0), V(0, 0, 1), 4.7625), math.radians(29.874735), math.radians(150.125265)), False)
sketch8.addGeometry(Part.ArcOfCircle(Part.Circle(V(119.38, -45.72, 0), V(0, 0, 1), 4.7625), math.radians(-29.874735), math.radians(209.874735)), False)
sketch8.addGeometry(Part.ArcOfCircle(Part.Circle(V(119.38, -45.72, 0), V(0, 0, 1), 4.7625), math.radians(-150.125265), math.radians(-29.874735)), False)
sketch8.addConstraint(Sketcher.Constraint("Tangent", 0, 1, 1, 2))
sketch8.addConstraint(Sketcher.Constraint("Coincident", 1, 1, 0, 2))
sketch8.addConstraint(Sketcher.Constraint("Tangent", 2, 1, 3, 2))
sketch8.addConstraint(Sketcher.Constraint("Coincident", 3, 1, 2, 2))
sketch8.addConstraint(Sketcher.Constraint("Tangent", 4, 2, 5, 1))
sketch8.addConstraint(Sketcher.Constraint("Tangent", 5, 2, 6, 1))
sketch8.addConstraint(Sketcher.Constraint("Tangent", 6, 2, 4, 1))
sketch8.addConstraint(Sketcher.Constraint("Tangent", 7, 1, 8, 2))
sketch8.addConstraint(Sketcher.Constraint("Coincident", 8, 1, 7, 2))
sketch8.addConstraint(Sketcher.Constraint("Equal", 1, 2))
sketch8.addConstraint(Sketcher.Constraint("Equal", 3, 4))
sketch8.addConstraint(Sketcher.Constraint("Equal", 6, 7))
sketch8.addConstraint(Sketcher.Constraint("Symmetric", 0, 3, 4, 3, -1, 1))
sketch8.addConstraint(Sketcher.Constraint("Symmetric", 2, 3, 7, 3, -1, 1))
sketch8.addConstraint(Sketcher.Constraint("Symmetric", 2, 3, 4, 3, -2))
sketch8.addConstraint(Sketcher.Constraint("Horizontal", 0, 1, 1, 1))
sketch8.addConstraint(Sketcher.Constraint("Horizontal", 2, 1, 3, 1))
sketch8.addConstraint(Sketcher.Constraint("Horizontal", 6, 3, 4, 2))
sketch8.addConstraint(Sketcher.Constraint("Horizontal", 3, 1, 5, 2))
sketch8.addConstraint(Sketcher.Constraint("Horizontal", 5, 2, 6, 2))
sketch8.addConstraint(Sketcher.Constraint("Horizontal", 1, 1, 7, 1))
sketch8.addConstraint(Sketcher.Constraint("Horizontal", 7, 1, 8, 1))
sketch8.addConstraint(Sketcher.Constraint("Vertical", 0, 1, 2, 1))
sketch8.addConstraint(Sketcher.Constraint("Radius", 0, Q("0.1875 in")))
sketch8.addConstraint(Sketcher.Constraint("DistanceX", 0, 3, -1, 1, Q("4.7 in")))
sketch8.addConstraint(Sketcher.Constraint("DistanceY", 0, 3, -1, 1, Q("1.8 in")))
sketch8.addConstraint(Sketcher.Constraint("DistanceX", 0, 1, -1, 1, 115.250358))
sketch8.setExpression("Constraints[23]", "Params.sketch8_radius")
pocket2 = body.newObject("PartDesign::Pocket", "Pocket001")
pocket2.Profile = sketch8
pocket2.Type = "ThroughAll"
pocket2.Reversed = True

doc.recompute()
